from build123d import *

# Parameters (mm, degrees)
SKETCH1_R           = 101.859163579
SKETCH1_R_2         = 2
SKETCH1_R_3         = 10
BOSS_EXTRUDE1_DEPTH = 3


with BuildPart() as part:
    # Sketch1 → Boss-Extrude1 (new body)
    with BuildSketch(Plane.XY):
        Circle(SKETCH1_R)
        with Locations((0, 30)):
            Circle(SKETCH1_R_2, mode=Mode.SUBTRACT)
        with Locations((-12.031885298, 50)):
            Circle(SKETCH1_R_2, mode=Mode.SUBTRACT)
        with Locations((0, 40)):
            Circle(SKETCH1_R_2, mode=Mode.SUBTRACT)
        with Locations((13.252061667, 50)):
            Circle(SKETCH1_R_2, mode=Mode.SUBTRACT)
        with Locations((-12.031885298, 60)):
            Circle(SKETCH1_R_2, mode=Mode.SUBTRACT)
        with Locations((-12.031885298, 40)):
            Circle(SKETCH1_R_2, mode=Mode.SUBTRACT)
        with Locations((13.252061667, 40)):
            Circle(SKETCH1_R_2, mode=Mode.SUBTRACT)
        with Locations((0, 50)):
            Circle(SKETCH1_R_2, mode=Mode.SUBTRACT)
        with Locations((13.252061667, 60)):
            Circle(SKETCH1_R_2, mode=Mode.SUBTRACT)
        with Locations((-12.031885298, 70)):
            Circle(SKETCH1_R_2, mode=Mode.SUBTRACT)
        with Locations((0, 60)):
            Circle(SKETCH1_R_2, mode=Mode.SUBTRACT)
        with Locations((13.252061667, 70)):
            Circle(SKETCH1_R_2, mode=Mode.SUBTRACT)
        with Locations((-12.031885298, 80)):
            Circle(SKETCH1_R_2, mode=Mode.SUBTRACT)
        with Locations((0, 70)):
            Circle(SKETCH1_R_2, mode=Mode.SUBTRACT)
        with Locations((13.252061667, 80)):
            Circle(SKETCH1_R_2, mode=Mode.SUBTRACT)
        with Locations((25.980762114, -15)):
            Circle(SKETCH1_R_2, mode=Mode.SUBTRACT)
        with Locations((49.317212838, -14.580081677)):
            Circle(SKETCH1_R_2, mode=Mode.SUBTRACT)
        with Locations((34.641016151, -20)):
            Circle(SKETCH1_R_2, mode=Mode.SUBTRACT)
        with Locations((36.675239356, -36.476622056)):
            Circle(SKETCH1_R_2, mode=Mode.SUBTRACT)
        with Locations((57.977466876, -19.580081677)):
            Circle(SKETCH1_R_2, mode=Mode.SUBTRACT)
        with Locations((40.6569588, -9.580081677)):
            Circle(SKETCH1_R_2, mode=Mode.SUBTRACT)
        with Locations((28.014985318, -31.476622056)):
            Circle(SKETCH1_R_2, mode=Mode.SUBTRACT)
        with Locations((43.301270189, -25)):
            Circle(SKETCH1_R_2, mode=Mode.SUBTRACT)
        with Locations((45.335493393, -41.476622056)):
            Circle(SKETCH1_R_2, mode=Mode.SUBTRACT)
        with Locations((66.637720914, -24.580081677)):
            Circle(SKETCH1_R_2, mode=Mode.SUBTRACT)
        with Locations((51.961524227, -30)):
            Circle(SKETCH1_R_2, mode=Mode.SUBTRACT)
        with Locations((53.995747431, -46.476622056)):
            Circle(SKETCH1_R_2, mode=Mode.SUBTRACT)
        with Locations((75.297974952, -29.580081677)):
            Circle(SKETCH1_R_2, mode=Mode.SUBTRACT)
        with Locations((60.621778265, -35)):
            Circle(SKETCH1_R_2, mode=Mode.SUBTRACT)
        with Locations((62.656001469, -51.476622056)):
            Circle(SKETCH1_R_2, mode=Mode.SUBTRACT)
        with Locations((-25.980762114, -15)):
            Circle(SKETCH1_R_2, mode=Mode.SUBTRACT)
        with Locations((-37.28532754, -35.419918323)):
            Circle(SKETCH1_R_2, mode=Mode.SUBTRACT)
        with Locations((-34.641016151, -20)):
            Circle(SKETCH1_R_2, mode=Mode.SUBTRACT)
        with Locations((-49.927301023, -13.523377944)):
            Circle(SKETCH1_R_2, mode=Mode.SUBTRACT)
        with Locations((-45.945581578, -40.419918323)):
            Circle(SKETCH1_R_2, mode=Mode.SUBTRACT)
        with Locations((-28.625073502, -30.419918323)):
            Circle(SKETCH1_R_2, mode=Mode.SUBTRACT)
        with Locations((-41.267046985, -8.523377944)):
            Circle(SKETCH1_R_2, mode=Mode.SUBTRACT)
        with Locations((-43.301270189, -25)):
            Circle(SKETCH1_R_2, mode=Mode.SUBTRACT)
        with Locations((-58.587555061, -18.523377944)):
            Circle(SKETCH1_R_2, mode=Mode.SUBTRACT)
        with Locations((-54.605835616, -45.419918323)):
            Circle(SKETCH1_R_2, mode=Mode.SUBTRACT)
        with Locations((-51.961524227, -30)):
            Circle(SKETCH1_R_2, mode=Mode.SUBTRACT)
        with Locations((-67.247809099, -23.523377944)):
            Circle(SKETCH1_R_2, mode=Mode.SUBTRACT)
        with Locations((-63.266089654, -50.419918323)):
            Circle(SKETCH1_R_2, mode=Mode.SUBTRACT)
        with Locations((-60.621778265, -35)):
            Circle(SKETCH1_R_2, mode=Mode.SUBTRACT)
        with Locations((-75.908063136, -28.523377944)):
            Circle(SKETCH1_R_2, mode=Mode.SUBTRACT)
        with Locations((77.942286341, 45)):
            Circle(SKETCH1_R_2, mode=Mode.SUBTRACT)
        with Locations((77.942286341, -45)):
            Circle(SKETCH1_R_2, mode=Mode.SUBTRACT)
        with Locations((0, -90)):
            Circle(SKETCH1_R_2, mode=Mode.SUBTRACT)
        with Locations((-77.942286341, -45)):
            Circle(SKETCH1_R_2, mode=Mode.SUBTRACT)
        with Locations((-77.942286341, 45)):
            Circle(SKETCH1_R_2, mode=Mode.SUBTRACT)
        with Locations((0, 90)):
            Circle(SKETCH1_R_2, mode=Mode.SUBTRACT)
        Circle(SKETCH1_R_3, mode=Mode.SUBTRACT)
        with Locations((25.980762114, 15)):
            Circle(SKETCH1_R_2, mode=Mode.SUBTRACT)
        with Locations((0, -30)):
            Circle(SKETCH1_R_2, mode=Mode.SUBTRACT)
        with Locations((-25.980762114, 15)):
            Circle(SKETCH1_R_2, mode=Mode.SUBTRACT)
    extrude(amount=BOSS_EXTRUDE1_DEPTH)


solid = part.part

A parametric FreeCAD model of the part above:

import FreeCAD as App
import Part
import Sketcher

doc = App.newDocument("Part")
body = doc.addObject("PartDesign::Body", "Body")

# Sketch on XY plane
sketch1 = doc.addObject("Sketcher::SketchObject", "Sketch")
body.addObject(sketch1)
sketch1.AttachmentSupport = (doc.XY_Plane, [""])
sketch1.MapMode = "FlatFace"
sketch1.addGeometry([
    Part.Circle(App.Vector(0, 0, 0), App.Vector(0, 0, 1), 101.859164),  # 0
    Part.Circle(App.Vector(-63.26609, -50.419918, 0), App.Vector(0, 0, 1), 2),  # 1
    Part.Circle(App.Vector(-77.942286, -45, 0), App.Vector(0, 0, 1), 2),  # 2
    Part.Circle(App.Vector(-60.621778, -35, 0), App.Vector(0, 0, 1), 2),  # 3
    Part.Circle(App.Vector(-75.908063, -28.523378, 0), App.Vector(0, 0, 1), 2),  # 4
    Part.Circle(App.Vector(-67.247809, -23.523378, 0), App.Vector(0, 0, 1), 2),  # 5
    Part.Circle(App.Vector(-54.605836, -45.419918, 0), App.Vector(0, 0, 1), 2),  # 6
    Part.Circle(App.Vector(-45.945582, -40.419918, 0), App.Vector(0, 0, 1), 2),  # 7
    Part.Circle(App.Vector(-51.961524, -30, 0), App.Vector(0, 0, 1), 2),  # 8
    Part.Circle(App.Vector(-43.30127, -25, 0), App.Vector(0, 0, 1), 2),  # 9
    Part.Circle(App.Vector(-58.587555, -18.523378, 0), App.Vector(0, 0, 1), 2),  # 10
    Part.Circle(App.Vector(-49.927301, -13.523378, 0), App.Vector(0, 0, 1), 2),  # 11
    Part.Circle(App.Vector(-41.267047, -8.523378, 0), App.Vector(0, 0, 1), 2),  # 12
    Part.Circle(App.Vector(-37.285328, -35.419918, 0), App.Vector(0, 0, 1), 2),  # 13
    Part.Circle(App.Vector(-28.625074, -30.419918, 0), App.Vector(0, 0, 1), 2),  # 14
    Part.Circle(App.Vector(-34.641016, -20, 0), App.Vector(0, 0, 1), 2),  # 15
    Part.Circle(App.Vector(-25.980762, -15, 0), App.Vector(0, 0, 1), 2),  # 16
    Part.Circle(App.Vector(0, -90, 0), App.Vector(0, 0, 1), 2),  # 17
    Part.Circle(App.Vector(53.995747, -46.476622, 0), App.Vector(0, 0, 1), 2),  # 18
    Part.Circle(App.Vector(62.656001, -51.476622, 0), App.Vector(0, 0, 1), 2),  # 19
    Part.Circle(App.Vector(0, -30, 0), App.Vector(0, 0, 1), 2),  # 20
    Part.Circle(App.Vector(36.675239, -36.476622, 0), App.Vector(0, 0, 1), 2),  # 21
    Part.Circle(App.Vector(28.014985, -31.476622, 0), App.Vector(0, 0, 1), 2),  # 22
    Part.Circle(App.Vector(25.980762, -15, 0), App.Vector(0, 0, 1), 2),  # 23
    Part.Circle(App.Vector(34.641016, -20, 0), App.Vector(0, 0, 1), 2),  # 24
    Part.Circle(App.Vector(45.335493, -41.476622, 0), App.Vector(0, 0, 1), 2),  # 25
    Part.Circle(App.Vector(43.30127, -25, 0), App.Vector(0, 0, 1), 2),  # 26
    Part.Circle(App.Vector(51.961524, -30, 0), App.Vector(0, 0, 1), 2),  # 27
    Part.Circle(App.Vector(60.621778, -35, 0), App.Vector(0, 0, 1), 2),  # 28
    Part.Circle(App.Vector(77.942286, -45, 0), App.Vector(0, 0, 1), 2),  # 29
    Part.Circle(App.Vector(66.637721, -24.580082, 0), App.Vector(0, 0, 1), 2),  # 30
    Part.Circle(App.Vector(75.297975, -29.580082, 0), App.Vector(0, 0, 1), 2),  # 31
    Part.Circle(App.Vector(49.317213, -14.580082, 0), App.Vector(0, 0, 1), 2),  # 32
    Part.Circle(App.Vector(57.977467, -19.580082, 0), App.Vector(0, 0, 1), 2),  # 33
    Part.Circle(App.Vector(40.656959, -9.580082, 0), App.Vector(0, 0, 1), 2),  # 34
    Part.Circle(App.Vector(-77.942286, 45, 0), App.Vector(0, 0, 1), 2),  # 35
    Part.Circle(App.Vector(-25.980762, 15, 0), App.Vector(0, 0, 1), 2),  # 36
    Part.Circle(App.Vector(-12.031885, 40, 0), App.Vector(0, 0, 1), 2),  # 37
    Part.Circle(App.Vector(-12.031885, 50, 0), App.Vector(0, 0, 1), 2),  # 38
    Part.Circle(App.Vector(-12.031885, 60, 0), App.Vector(0, 0, 1), 2),  # 39
    Part.Circle(App.Vector(-12.031885, 70, 0), App.Vector(0, 0, 1), 2),  # 40
    Part.Circle(App.Vector(-12.031885, 80, 0), App.Vector(0, 0, 1), 2),  # 41
    Part.Circle(App.Vector(0, 0, 0), App.Vector(0, 0, 1), 10),  # 42
    Part.Circle(App.Vector(25.980762, 15, 0), App.Vector(0, 0, 1), 2),  # 43
    Part.Circle(App.Vector(0, 30, 0), App.Vector(0, 0, 1), 2),  # 44
    Part.Circle(App.Vector(0, 40, 0), App.Vector(0, 0, 1), 2),  # 45
    Part.Circle(App.Vector(13.252062, 40, 0), App.Vector(0, 0, 1), 2),  # 46
    Part.Circle(App.Vector(77.942286, 45, 0), App.Vector(0, 0, 1), 2),  # 47
    Part.Circle(App.Vector(0, 50, 0), App.Vector(0, 0, 1), 2),  # 48
    Part.Circle(App.Vector(13.252062, 50, 0), App.Vector(0, 0, 1), 2),  # 49
    Part.Circle(App.Vector(0, 60, 0), App.Vector(0, 0, 1), 2),  # 50
    Part.Circle(App.Vector(13.252062, 60, 0), App.Vector(0, 0, 1), 2),  # 51
    Part.Circle(App.Vector(0, 70, 0), App.Vector(0, 0, 1), 2),  # 52
    Part.Circle(App.Vector(13.252062, 70, 0), App.Vector(0, 0, 1), 2),  # 53
    Part.Circle(App.Vector(13.252062, 80, 0), App.Vector(0, 0, 1), 2),  # 54
    Part.Circle(App.Vector(0, 90, 0), App.Vector(0, 0, 1), 2),  # 55
], False)
sketch1.addConstraint([
    Sketcher.Constraint("Coincident", 0, 3, -1, 1),
    Sketcher.Constraint("Coincident", 42, 3, -1, 1),
    Sketcher.Constraint("Equal", 1, 2),
    Sketcher.Constraint("Equal", 2, 3),
    Sketcher.Constraint("Equal", 3, 4),
    Sketcher.Constraint("Equal", 4, 5),
    Sketcher.Constraint("Equal", 5, 6),
    Sketcher.Constraint("Equal", 6, 7),
    Sketcher.Constraint("Equal", 7, 8),
    Sketcher.Constraint("Equal", 8, 9),
    Sketcher.Constraint("Equal", 9, 10),
    Sketcher.Constraint("Equal", 10, 11),
    Sketcher.Constraint("Equal", 11, 12),
    Sketcher.Constraint("Equal", 12, 13),
    Sketcher.Constraint("Equal", 13, 14),
    Sketcher.Constraint("Equal", 14, 15),
    Sketcher.Constraint("Equal", 15, 16),
    Sketcher.Constraint("Equal", 16, 17),
    Sketcher.Constraint("Equal", 17, 18),
    Sketcher.Constraint("Equal", 18, 19),
    Sketcher.Constraint("Equal", 19, 20),
    Sketcher.Constraint("Equal", 20, 21),
    Sketcher.Constraint("Equal", 21, 22),
    Sketcher.Constraint("Equal", 22, 23),
    Sketcher.Constraint("Equal", 23, 24),
    Sketcher.Constraint("Equal", 24, 25),
    Sketcher.Constraint("Equal", 25, 26),
    Sketcher.Constraint("Equal", 26, 27),
    Sketcher.Constraint("Equal", 27, 28),
    Sketcher.Constraint("Equal", 28, 29),
    Sketcher.Constraint("Equal", 29, 30),
    Sketcher.Constraint("Equal", 30, 31),
    Sketcher.Constraint("Equal", 31, 32),
    Sketcher.Constraint("Equal", 32, 33),
    Sketcher.Constraint("Equal", 33, 34),
    Sketcher.Constraint("Equal", 34, 35),
    Sketcher.Constraint("Equal", 35, 36),
    Sketcher.Constraint("Equal", 36, 37),
    Sketcher.Constraint("Equal", 37, 38),
    Sketcher.Constraint("Equal", 38, 39),
    Sketcher.Constraint("Equal", 39, 40),
    Sketcher.Constraint("Equal", 40, 41),
    Sketcher.Constraint("Equal", 41, 43),
    Sketcher.Constraint("Equal", 43, 44),
    Sketcher.Constraint("Equal", 44, 45),
    Sketcher.Constraint("Equal", 45, 46),
    Sketcher.Constraint("Equal", 46, 47),
    Sketcher.Constraint("Equal", 47, 48),
    Sketcher.Constraint("Equal", 48, 49),
    Sketcher.Constraint("Equal", 49, 50),
    Sketcher.Constraint("Equal", 50, 51),
    Sketcher.Constraint("Equal", 51, 52),
    Sketcher.Constraint("Equal", 52, 53),
    Sketcher.Constraint("Equal", 53, 54),
    Sketcher.Constraint("Equal", 54, 55),
    Sketcher.Constraint("Symmetric", 29, 3, 35, 3, -1, 1),
    Sketcher.Constraint("Symmetric", 23, 3, 36, 3, -1, 1),
    Sketcher.Constraint("Symmetric", 16, 3, 43, 3, -1, 1),
    Sketcher.Constraint("Symmetric", 20, 3, 44, 3, -1, 1),
    Sketcher.Constraint("Symmetric", 2, 3, 47, 3, -1, 1),
    Sketcher.Constraint("Symmetric", 17, 3, 55, 3, -1, 1),
    Sketcher.Constraint("Symmetric", 16, 3, 23, 3, -2),
    Sketcher.Constraint("Symmetric", 15, 3, 24, 3, -2),
    Sketcher.Constraint("Symmetric", 9, 3, 26, 3, -2),
    Sketcher.Constraint("Symmetric", 8, 3, 27, 3, -2),
    Sketcher.Constraint("Symmetric", 3, 3, 28, 3, -2),
    Sketcher.Constraint("Symmetric", 2, 3, 29, 3, -2),
    Sketcher.Constraint("PointOnObject", 17, 3, -2),
    Sketcher.Constraint("PointOnObject", 20, 3, -2),
    Sketcher.Constraint("PointOnObject", 45, 3, -2),
    Sketcher.Constraint("PointOnObject", 48, 3, -2),
    Sketcher.Constraint("PointOnObject", 50, 3, -2),
    Sketcher.Constraint("PointOnObject", 52, 3, -2),
    Sketcher.Constraint("Horizontal", 8, 3, 20, 3),
    Sketcher.Constraint("Horizontal", 37, 3, 45, 3),
    Sketcher.Constraint("Horizontal", 45, 3, 46, 3),
    Sketcher.Constraint("Horizontal", 38, 3, 48, 3),
    Sketcher.Constraint("Horizontal", 48, 3, 49, 3),
    Sketcher.Constraint("Horizontal", 39, 3, 50, 3),
    Sketcher.Constraint("Horizontal", 50, 3, 51, 3),
    Sketcher.Constraint("Horizontal", 40, 3, 52, 3),
    Sketcher.Constraint("Horizontal", 52, 3, 53, 3),
    Sketcher.Constraint("Horizontal", 41, 3, 54, 3),
    Sketcher.Constraint("Vertical", 37, 3, 38, 3),
    Sketcher.Constraint("Vertical", 38, 3, 39, 3),
    Sketcher.Constraint("Vertical", 39, 3, 40, 3),
    Sketcher.Constraint("Vertical", 40, 3, 41, 3),
    Sketcher.Constraint("Vertical", 46, 3, 49, 3),
    Sketcher.Constraint("Vertical", 49, 3, 51, 3),
    Sketcher.Constraint("Vertical", 51, 3, 53, 3),
    Sketcher.Constraint("Vertical", 53, 3, 54, 3),
    Sketcher.Constraint("Diameter", 1, 4.0),
    Sketcher.Constraint("Diameter", 42, 20.0),
    Sketcher.Constraint("DistanceY", 2, 3, -1, 1, 45.0),
    Sketcher.Constraint("DistanceY", 3, 3, -1, 1, 35.0),
    Sketcher.Constraint("DistanceY", 8, 3, -1, 1, 30.0),
    Sketcher.Constraint("DistanceY", 9, 3, -1, 1, 25.0),
    Sketcher.Constraint("DistanceY", 15, 3, -1, 1, 20.0),
    Sketcher.Constraint("DistanceY", 16, 3, -1, 1, 15.0),
    Sketcher.Constraint("DistanceY", 17, 3, -1, 1, 90.0),
    Sketcher.Constraint("DistanceY", -1, 1, 37, 3, 40.0),
    Sketcher.Constraint("DistanceY", -1, 1, 38, 3, 50.0),
    Sketcher.Constraint("DistanceY", -1, 1, 39, 3, 60.0),
    Sketcher.Constraint("DistanceY", -1, 1, 40, 3, 70.0),
    Sketcher.Constraint("DistanceY", -1, 1, 41, 3, 80.0),
    Sketcher.Constraint("DistanceY", 4, 3, 5, 3, 5.0),
    Sketcher.Constraint("DistanceY", 1, 3, 6, 3, 5.0),
    Sketcher.Constraint("DistanceY", 6, 3, 7, 3, 5.0),
    Sketcher.Constraint("DistanceY", 5, 3, 10, 3, 5.0),
    Sketcher.Constraint("DistanceY", 10, 3, 11, 3, 5.0),
    Sketcher.Constraint("DistanceY", 11, 3, 12, 3, 5.0),
    Sketcher.Constraint("DistanceY", 7, 3, 13, 3, 5.0),
    Sketcher.Constraint("DistanceY", 13, 3, 14, 3, 5.0),
    Sketcher.Constraint("DistanceY", 19, 3, 18, 3, 5.0),
    Sketcher.Constraint("DistanceY", 18, 3, 21, 3, 10.0),
    Sketcher.Constraint("DistanceY", 21, 3, 22, 3, 5.0),
    Sketcher.Constraint("DistanceY", 25, 3, 21, 3, 5.0),
    Sketcher.Constraint("DistanceY", 31, 3, 30, 3, 5.0),
    Sketcher.Constraint("DistanceY", 30, 3, 32, 3, 10.0),
    Sketcher.Constraint("DistanceY", 30, 3, 33, 3, 5.0),
    Sketcher.Constraint("DistanceY", 32, 3, 34, 3, 5.0),
    Sketcher.Constraint("Diameter", 0, 203.718327),
    Sketcher.Constraint("DistanceX", -1, 1, 19, 3, 62.656001),
    Sketcher.Constraint("DistanceX", 11, 3, -1, 1, 49.927301),
    Sketcher.Constraint("DistanceX", 35, 3, 38, 3, 65.910401),
    Sketcher.Constraint("DistanceX", 46, 3, 43, 3, 12.7287),
    Sketcher.Constraint("DistanceX", 1, 3, -1, 1, 63.26609),
    Sketcher.Constraint("DistanceY", 1, 3, -1, 1, 50.419918),
    Sketcher.Constraint("DistanceX", 3, 3, -1, 1, 60.621778),
    Sketcher.Constraint("DistanceX", 5, 3, -1, 1, 67.247809),
    Sketcher.Constraint("DistanceX", 7, 3, -1, 1, 45.945582),
    Sketcher.Constraint("DistanceX", 9, 3, -1, 1, 43.30127),
    Sketcher.Constraint("DistanceX", -1, 1, 21, 3, 36.675239),
    Sketcher.Constraint("DistanceX", -1, 1, 30, 3, 66.637721),
    Sketcher.Constraint("DistanceY", 30, 3, -1, 1, 24.580082),
    Sketcher.Constraint("DistanceX", -1, 1, 34, 3, 40.656959),
    Sketcher.Constraint("DistanceX", -1, 1, 46, 3, 13.252062),
    Sketcher.Constraint("DistanceX", 2, 3, 3, 3, 17.320508),
    Sketcher.Constraint("DistanceY", 1, 3, 4, 3, 21.89654),
    Sketcher.Constraint("DistanceX", 2, 3, 6, 3, 23.336451),
    Sketcher.Constraint("DistanceX", 4, 3, 7, 3, 29.962482),
    Sketcher.Constraint("DistanceX", 6, 3, 8, 3, 2.644311),
    Sketcher.Constraint("DistanceX", 10, 3, 8, 3, 6.626031),
    Sketcher.Constraint("DistanceX", 10, 3, 12, 3, 17.320508),
    Sketcher.Constraint("DistanceX", 6, 3, 13, 3, 17.320508),
    Sketcher.Constraint("DistanceX", 7, 3, 14, 3, 17.320508),
    Sketcher.Constraint("DistanceX", 12, 3, 15, 3, 6.626031),
    Sketcher.Constraint("DistanceX", 14, 3, 18, 3, 82.620821),
    Sketcher.Constraint("DistanceX", 22, 3, 24, 3, 6.626031),
    Sketcher.Constraint("DistanceX", 22, 3, 25, 3, 17.320508),
    Sketcher.Constraint("DistanceY", 18, 3, 30, 3, 21.89654),
    Sketcher.Constraint("DistanceX", 31, 3, 29, 3, 2.644311),
    Sketcher.Constraint("DistanceX", 32, 3, 27, 3, 2.644311),
    Sketcher.Constraint("DistanceX", 33, 3, 28, 3, 2.644311),
])
pad1 = doc.addObject("PartDesign::Pad", "Pad")
body.addObject(pad1)
pad1.Profile = sketch1
pad1.Length = 3

doc.recompute()
